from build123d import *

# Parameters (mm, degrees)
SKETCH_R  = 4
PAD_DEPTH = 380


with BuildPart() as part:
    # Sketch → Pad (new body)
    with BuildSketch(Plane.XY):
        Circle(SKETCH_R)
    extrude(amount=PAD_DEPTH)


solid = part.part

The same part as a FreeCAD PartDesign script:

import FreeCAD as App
import Part
import Sketcher

V = App.Vector
Q = App.Units.Quantity

doc = App.newDocument("Part")
body = doc.addObject("PartDesign::Body", "Body")

sketch1 = body.newObject("Sketcher::SketchObject", "Sketch")
sketch1.AttachmentSupport = (doc.getObject("XY_Plane"), [""])
sketch1.MapMode = "FlatFace"
sketch1.addGeometry(Part.Circle(V(0, 0, 0), V(0, 0, 1), 4), False)
sketch1.addConstraint(Sketcher.Constraint("Coincident", 0, 3, -1, 1))
sketch1.addConstraint(Sketcher.Constraint("Diameter", 0, Q("8 mm")))
pad1 = body.newObject("PartDesign::Pad", "Pad")
pad1.Profile = sketch1
pad1.Length = 380

doc.recompute()
